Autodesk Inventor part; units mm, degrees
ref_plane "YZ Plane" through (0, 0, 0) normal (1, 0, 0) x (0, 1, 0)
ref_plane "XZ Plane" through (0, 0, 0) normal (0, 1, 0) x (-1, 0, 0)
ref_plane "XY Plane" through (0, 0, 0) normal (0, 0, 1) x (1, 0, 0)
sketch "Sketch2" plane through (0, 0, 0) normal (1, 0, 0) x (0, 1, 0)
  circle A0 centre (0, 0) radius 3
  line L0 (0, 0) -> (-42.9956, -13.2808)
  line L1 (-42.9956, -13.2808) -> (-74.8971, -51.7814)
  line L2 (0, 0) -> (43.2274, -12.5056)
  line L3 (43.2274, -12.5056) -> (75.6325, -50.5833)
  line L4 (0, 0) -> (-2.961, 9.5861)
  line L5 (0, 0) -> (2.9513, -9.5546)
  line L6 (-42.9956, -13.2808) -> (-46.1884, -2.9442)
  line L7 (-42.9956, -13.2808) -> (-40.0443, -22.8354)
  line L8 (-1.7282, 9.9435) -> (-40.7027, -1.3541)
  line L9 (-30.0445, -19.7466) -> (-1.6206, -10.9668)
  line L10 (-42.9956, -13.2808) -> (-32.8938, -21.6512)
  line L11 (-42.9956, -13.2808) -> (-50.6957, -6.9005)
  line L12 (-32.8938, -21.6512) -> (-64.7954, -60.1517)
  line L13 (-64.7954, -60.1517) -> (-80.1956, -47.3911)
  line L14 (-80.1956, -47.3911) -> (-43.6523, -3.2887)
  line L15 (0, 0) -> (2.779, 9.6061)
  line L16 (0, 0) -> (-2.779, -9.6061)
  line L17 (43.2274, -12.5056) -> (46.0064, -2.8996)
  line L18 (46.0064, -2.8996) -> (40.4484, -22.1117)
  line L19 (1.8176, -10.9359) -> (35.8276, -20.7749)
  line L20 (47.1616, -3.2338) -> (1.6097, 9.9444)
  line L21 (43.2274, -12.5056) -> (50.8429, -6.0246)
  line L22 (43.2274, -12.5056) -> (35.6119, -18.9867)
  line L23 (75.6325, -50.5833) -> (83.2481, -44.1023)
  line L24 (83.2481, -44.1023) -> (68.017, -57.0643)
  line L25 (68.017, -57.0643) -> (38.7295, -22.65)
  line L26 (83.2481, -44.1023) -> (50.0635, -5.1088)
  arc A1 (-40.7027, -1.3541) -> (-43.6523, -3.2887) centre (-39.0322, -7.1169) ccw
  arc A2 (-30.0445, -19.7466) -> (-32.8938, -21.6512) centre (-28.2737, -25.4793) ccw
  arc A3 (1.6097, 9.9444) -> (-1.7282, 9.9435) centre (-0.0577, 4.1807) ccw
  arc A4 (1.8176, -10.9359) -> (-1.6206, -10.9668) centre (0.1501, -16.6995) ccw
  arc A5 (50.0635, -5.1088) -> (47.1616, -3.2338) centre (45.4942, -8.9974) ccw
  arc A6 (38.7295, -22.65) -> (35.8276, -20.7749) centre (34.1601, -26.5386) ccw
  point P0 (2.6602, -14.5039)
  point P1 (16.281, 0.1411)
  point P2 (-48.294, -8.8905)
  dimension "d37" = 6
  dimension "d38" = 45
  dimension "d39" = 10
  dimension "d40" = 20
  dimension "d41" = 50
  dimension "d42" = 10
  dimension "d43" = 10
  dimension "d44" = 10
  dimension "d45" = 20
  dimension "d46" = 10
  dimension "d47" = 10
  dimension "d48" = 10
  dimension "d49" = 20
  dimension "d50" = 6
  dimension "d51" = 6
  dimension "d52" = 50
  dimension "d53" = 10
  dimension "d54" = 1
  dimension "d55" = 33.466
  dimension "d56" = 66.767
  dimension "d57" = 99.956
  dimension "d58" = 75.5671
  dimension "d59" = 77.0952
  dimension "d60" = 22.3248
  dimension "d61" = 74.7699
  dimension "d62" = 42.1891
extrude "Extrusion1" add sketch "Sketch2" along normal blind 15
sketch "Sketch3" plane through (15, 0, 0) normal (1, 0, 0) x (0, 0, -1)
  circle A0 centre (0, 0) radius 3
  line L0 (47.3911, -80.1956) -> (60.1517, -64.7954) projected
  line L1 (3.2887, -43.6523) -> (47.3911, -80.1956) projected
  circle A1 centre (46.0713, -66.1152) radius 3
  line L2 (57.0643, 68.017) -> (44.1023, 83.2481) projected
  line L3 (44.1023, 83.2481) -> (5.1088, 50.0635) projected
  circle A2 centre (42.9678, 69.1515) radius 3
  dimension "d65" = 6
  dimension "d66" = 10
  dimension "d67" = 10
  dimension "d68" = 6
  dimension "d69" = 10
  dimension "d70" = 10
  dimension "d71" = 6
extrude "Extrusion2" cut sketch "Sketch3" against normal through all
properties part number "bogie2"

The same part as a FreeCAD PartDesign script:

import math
import FreeCAD as App
import Part
import Sketcher
Q = App.Units.Quantity

doc = App.newDocument("Part")
body = doc.addObject("PartDesign::Body", "Body")

# Sketch on YZ plane
sketch1 = body.newObject("Sketcher::SketchObject", "Sketch")
sketch1.AttachmentSupport = (doc.getObject("YZ_Plane"), [""])
sketch1.MapMode = "FlatFace"
sketch1.addGeometry(Part.ArcOfCircle(Part.Circle(App.Vector(-0.1, 4.2, 0), App.Vector(0, 0, 1), 6), math.radians(74), math.radians(106)), False)
sketch1.addGeometry(Part.LineSegment(App.Vector(-1.7, 9.9, 0), App.Vector(-40.7, -1.4, 0)), False)
sketch1.addGeometry(Part.ArcOfCircle(Part.Circle(App.Vector(-39, -7.1, 0), App.Vector(0, 0, 1), 6), math.radians(106), math.radians(140)), False)
sketch1.addGeometry(Part.LineSegment(App.Vector(-43.7, -3.3, 0), App.Vector(-80.2, -47.4, 0)), False)
sketch1.addGeometry(Part.LineSegment(App.Vector(-80.2, -47.4, 0), App.Vector(-64.8, -60.2, 0)), False)
sketch1.addGeometry(Part.LineSegment(App.Vector(-64.8, -60.2, 0), App.Vector(-32.9, -21.7, 0)), False)
sketch1.addGeometry(Part.ArcOfCircle(Part.Circle(App.Vector(-28.3, -25.5, 0), App.Vector(0, 0, 1), 6), math.radians(107), math.radians(140)), False)
sketch1.addGeometry(Part.LineSegment(App.Vector(-30, -19.7, 0), App.Vector(-1.6, -11, 0)), False)
sketch1.addGeometry(Part.ArcOfCircle(Part.Circle(App.Vector(0.2, -16.7, 0), App.Vector(0, 0, 1), 6), math.radians(74), math.radians(107)), False)
sketch1.addGeometry(Part.LineSegment(App.Vector(1.8, -10.9, 0), App.Vector(35.8, -20.8, 0)), False)
sketch1.addGeometry(Part.ArcOfCircle(Part.Circle(App.Vector(34.2, -26.5, 0), App.Vector(0, 0, 1), 6), math.radians(40), math.radians(74)), False)
sketch1.addGeometry(Part.LineSegment(App.Vector(38.7, -22.6, 0), App.Vector(68, -57.1, 0)), False)
sketch1.addGeometry(Part.LineSegment(App.Vector(68, -57.1, 0), App.Vector(75.6, -50.6, 0)), False)
sketch1.addGeometry(Part.LineSegment(App.Vector(75.6, -50.6, 0), App.Vector(83.2, -44.1, 0)), False)
sketch1.addGeometry(Part.LineSegment(App.Vector(83.2, -44.1, 0), App.Vector(50.1, -5.1, 0)), False)
sketch1.addGeometry(Part.ArcOfCircle(Part.Circle(App.Vector(45.5, -9, 0), App.Vector(0, 0, 1), 6), math.radians(40), math.radians(74)), False)
sketch1.addGeometry(Part.LineSegment(App.Vector(47.2, -3.2, 0), App.Vector(1.6, 9.9, 0)), False)
sketch1.addConstraint(Sketcher.Constraint("Tangent", 0, 2, 1, 1))
sketch1.addConstraint(Sketcher.Constraint("Tangent", 1, 2, 2, 1))
sketch1.addConstraint(Sketcher.Constraint("Tangent", 2, 2, 3, 1))
sketch1.addConstraint(Sketcher.Constraint("Coincident", 3, 2, 4, 1))
sketch1.addConstraint(Sketcher.Constraint("Coincident", 4, 2, 5, 1))
sketch1.addConstraint(Sketcher.Constraint("Tangent", 5, 2, 6, 2))
sketch1.addConstraint(Sketcher.Constraint("Tangent", 6, 1, 7, 1))
sketch1.addConstraint(Sketcher.Constraint("Tangent", 7, 2, 8, 2))
sketch1.addConstraint(Sketcher.Constraint("Tangent", 8, 1, 9, 1))
sketch1.addConstraint(Sketcher.Constraint("Tangent", 9, 2, 10, 2))
sketch1.addConstraint(Sketcher.Constraint("Tangent", 10, 1, 11, 1))
sketch1.addConstraint(Sketcher.Constraint("Coincident", 11, 2, 12, 1))
sketch1.addConstraint(Sketcher.Constraint("Coincident", 12, 2, 13, 1))
sketch1.addConstraint(Sketcher.Constraint("Coincident", 13, 2, 14, 1))
sketch1.addConstraint(Sketcher.Constraint("Tangent", 14, 2, 15, 1))
sketch1.addConstraint(Sketcher.Constraint("Tangent", 15, 2, 16, 1))
sketch1.addConstraint(Sketcher.Constraint("Tangent", 16, 2, 0, 1))
sketch1.addConstraint(Sketcher.Constraint("Equal", 0, 2))
sketch1.addConstraint(Sketcher.Constraint("Equal", 2, 6))
sketch1.addConstraint(Sketcher.Constraint("Equal", 6, 8))
sketch1.addConstraint(Sketcher.Constraint("Equal", 8, 10))
sketch1.addConstraint(Sketcher.Constraint("Equal", 10, 15))
sketch1.addConstraint(Sketcher.Constraint("Perpendicular", 3, 4))
sketch1.addConstraint(Sketcher.Constraint("Perpendicular", 4, 5))
sketch1.addConstraint(Sketcher.Constraint("Perpendicular", 11, 12))
sketch1.addConstraint(Sketcher.Constraint("Parallel", 12, 13))
sketch1.addConstraint(Sketcher.Constraint("Perpendicular", 13, 14))
sketch1.addConstraint(Sketcher.Constraint("Parallel", 9, 16))
sketch1.addConstraint(Sketcher.Constraint("Equal", 12, 13))
sketch1.addConstraint(Sketcher.Constraint("Radius", 0, Q("6 mm")))
sketch1.addConstraint(Sketcher.Constraint("Distance", 4, Q("20 mm")))
sketch1.addConstraint(Sketcher.Constraint("Distance", 5, Q("50 mm")))
sketch1.addConstraint(Sketcher.Constraint("Distance", 12, Q("10 mm")))
sketch1.addConstraint(Sketcher.Constraint("DistanceX", -1, 1, 8, 3, Q("0.15 mm")))
sketch1.addConstraint(Sketcher.Constraint("DistanceX", -1, 1, 10, 3, Q("34.16 mm")))
sketch1.addConstraint(Sketcher.Constraint("DistanceY", 10, 1, -1, 1, Q("22.65 mm")))
sketch1.addConstraint(Sketcher.Constraint("DistanceY", 6, 3, 0, 3, Q("29.66 mm")))
sketch1.addConstraint(Sketcher.Constraint("DistanceX", 2, 2, 2, 3, Q("4.62 mm")))
sketch1.addConstraint(Sketcher.Constraint("Distance", 1, Q("40.579 mm")))
sketch1.addConstraint(Sketcher.Constraint("Distance", 3, Q("57.275 mm")))
sketch1.addConstraint(Sketcher.Constraint("Distance", 7, Q("29.749 mm")))
sketch1.addConstraint(Sketcher.Constraint("DistanceY", 2, 3, -1, 1, Q("7.117 mm")))
sketch1.addConstraint(Sketcher.Constraint("DistanceY", 8, 1, -1, 1, Q("10.936 mm")))
sketch1.addConstraint(Sketcher.Constraint("DistanceY", 9, 2, -1, 1, Q("20.775 mm")))
sketch1.addConstraint(Sketcher.Constraint("DistanceX", -1, 1, 11, 2, Q("68.017 mm")))
pad1 = body.newObject("PartDesign::Pad", "Pad")
pad1.Profile = sketch1
pad1.Length = 15

# Sketch on YZ plane
sketch2 = body.newObject("Sketcher::SketchObject", "Sketch001")
sketch2.AttachmentSupport = (doc.getObject("YZ_Plane"), [""])
sketch2.MapMode = "FlatFace"
sketch2.AttachmentOffset = App.Placement(App.Vector(0, 0, 15), App.Rotation())
sketch2.addGeometry(Part.Circle(App.Vector(0, 0, 0), App.Vector(0, 0, 1), 3), False)
sketch2.addGeometry(Part.Circle(App.Vector(-66.1, -46.1, 0), App.Vector(0, 0, 1), 3), False)
sketch2.addGeometry(Part.Circle(App.Vector(69.2, -43, 0), App.Vector(0, 0, 1), 3), False)
sketch2.addConstraint(Sketcher.Constraint("Coincident", 0, 3, -1, 1))
sketch2.addConstraint(Sketcher.Constraint("Equal", 0, 1))
sketch2.addConstraint(Sketcher.Constraint("Equal", 1, 2))
sketch2.addConstraint(Sketcher.Constraint("Diameter", 0, Q("6 mm")))
sketch2.addConstraint(Sketcher.Constraint("DistanceX", 1, 3, -1, 1, Q("66.1152 mm")))
sketch2.addConstraint(Sketcher.Constraint("DistanceY", 1, 3, -1, 1, Q("46.0713 mm")))
sketch2.addConstraint(Sketcher.Constraint("DistanceX", -1, 1, 2, 3, Q("69.1515 mm")))
sketch2.addConstraint(Sketcher.Constraint("DistanceY", 2, 3, -1, 1, Q("42.9678 mm")))
pocket1 = body.newObject("PartDesign::Pocket", "Pocket")
pocket1.Profile = sketch2
pocket1.Type = "ThroughAll"

doc.recompute()
